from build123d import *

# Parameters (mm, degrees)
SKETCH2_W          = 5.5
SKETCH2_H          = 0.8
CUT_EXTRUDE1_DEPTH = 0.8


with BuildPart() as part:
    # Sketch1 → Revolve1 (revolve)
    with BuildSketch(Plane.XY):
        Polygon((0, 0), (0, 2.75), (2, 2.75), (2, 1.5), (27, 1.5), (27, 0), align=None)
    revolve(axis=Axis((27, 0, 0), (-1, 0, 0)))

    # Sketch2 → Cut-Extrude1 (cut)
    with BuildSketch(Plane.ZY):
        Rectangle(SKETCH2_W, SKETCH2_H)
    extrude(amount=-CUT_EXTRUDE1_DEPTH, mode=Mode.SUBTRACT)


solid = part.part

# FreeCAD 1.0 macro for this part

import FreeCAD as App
import Part
import Sketcher
from FreeCAD import Vector
Q = App.Units.Quantity


def add_polygon(sketch, points):
    """Adds a closed chain of lines whose ends are joined by coincident constraints."""
    first, n = sketch.GeometryCount, len(points)
    for a, b in zip(points, points[1:] + points[:1]):
        sketch.addGeometry(Part.LineSegment(App.Vector(*a, 0), App.Vector(*b, 0)), False)
    for i in range(n):
        sketch.addConstraint(Sketcher.Constraint("Coincident", first + i, 2, first + (i + 1) % n, 1))

doc = App.newDocument("Part")
body = doc.addObject("PartDesign::Body", "Body")

# Sketch on XY plane
sketch1 = body.newObject("Sketcher::SketchObject", "Sketch")
sketch1.AttachmentSupport = (doc.getObject("XY_Plane"), [""])
sketch1.MapMode = "FlatFace"
add_polygon(sketch1, [(0, 2.75), (0, 0), (27, 0), (27, 1.5), (2, 1.5), (2, 2.75)])  # lines 0-5
sketch1.addConstraint([
    Sketcher.Constraint("Vertical", 0),
    Sketcher.Constraint("Horizontal", 1),
    Sketcher.Constraint("Vertical", 2),
    Sketcher.Constraint("Horizontal", 3),
    Sketcher.Constraint("Vertical", 4),
    Sketcher.Constraint("Horizontal", 5),
    Sketcher.Constraint("Coincident", 0, 2, -1, 1),
    Sketcher.Constraint("DistanceX", 1, 1, 1, 2, Q("27 mm")),
    Sketcher.Constraint("DistanceX", 3, 2, 3, 1, Q("25 mm")),
    Sketcher.Constraint("DistanceY", 2, 1, 2, 2, Q("1.5 mm")),
    Sketcher.Constraint("DistanceY", 0, 2, 0, 1, Q("2.75 mm")),
])
revolution = body.newObject("PartDesign::Revolution", "Revolution")
revolution.Profile = sketch1
revolution.ReferenceAxis = (sketch1, ["H_Axis"])
revolution.Angle = 360

# Sketch on YZ plane
sketch2 = body.newObject("Sketcher::SketchObject", "Sketch001")
sketch2.AttachmentSupport = (doc.getObject("YZ_Plane"), [""])
sketch2.MapMode = "FlatFace"
add_polygon(sketch2, [(0.4, -2.75), (-0.4, -2.75), (-0.4, 2.75), (0.4, 2.75)])  # lines 0-3
sketch2.addConstraint([
    Sketcher.Constraint("Horizontal", 0),
    Sketcher.Constraint("Vertical", 1),
    Sketcher.Constraint("Horizontal", 2),
    Sketcher.Constraint("Vertical", 3),
    Sketcher.Constraint("Symmetric", 0, 2, 2, 2, -1, 1),
    Sketcher.Constraint("DistanceX", 0, 2, 0, 1, Q("0.8 mm")),
    Sketcher.Constraint("DistanceY", 1, 1, 1, 2, Q("5.5 mm")),
])
pocket1 = body.newObject("PartDesign::Pocket", "Pocket")
pocket1.Profile = sketch2
pocket1.Length = 0.8
pocket1.Reversed = True

doc.recompute()
